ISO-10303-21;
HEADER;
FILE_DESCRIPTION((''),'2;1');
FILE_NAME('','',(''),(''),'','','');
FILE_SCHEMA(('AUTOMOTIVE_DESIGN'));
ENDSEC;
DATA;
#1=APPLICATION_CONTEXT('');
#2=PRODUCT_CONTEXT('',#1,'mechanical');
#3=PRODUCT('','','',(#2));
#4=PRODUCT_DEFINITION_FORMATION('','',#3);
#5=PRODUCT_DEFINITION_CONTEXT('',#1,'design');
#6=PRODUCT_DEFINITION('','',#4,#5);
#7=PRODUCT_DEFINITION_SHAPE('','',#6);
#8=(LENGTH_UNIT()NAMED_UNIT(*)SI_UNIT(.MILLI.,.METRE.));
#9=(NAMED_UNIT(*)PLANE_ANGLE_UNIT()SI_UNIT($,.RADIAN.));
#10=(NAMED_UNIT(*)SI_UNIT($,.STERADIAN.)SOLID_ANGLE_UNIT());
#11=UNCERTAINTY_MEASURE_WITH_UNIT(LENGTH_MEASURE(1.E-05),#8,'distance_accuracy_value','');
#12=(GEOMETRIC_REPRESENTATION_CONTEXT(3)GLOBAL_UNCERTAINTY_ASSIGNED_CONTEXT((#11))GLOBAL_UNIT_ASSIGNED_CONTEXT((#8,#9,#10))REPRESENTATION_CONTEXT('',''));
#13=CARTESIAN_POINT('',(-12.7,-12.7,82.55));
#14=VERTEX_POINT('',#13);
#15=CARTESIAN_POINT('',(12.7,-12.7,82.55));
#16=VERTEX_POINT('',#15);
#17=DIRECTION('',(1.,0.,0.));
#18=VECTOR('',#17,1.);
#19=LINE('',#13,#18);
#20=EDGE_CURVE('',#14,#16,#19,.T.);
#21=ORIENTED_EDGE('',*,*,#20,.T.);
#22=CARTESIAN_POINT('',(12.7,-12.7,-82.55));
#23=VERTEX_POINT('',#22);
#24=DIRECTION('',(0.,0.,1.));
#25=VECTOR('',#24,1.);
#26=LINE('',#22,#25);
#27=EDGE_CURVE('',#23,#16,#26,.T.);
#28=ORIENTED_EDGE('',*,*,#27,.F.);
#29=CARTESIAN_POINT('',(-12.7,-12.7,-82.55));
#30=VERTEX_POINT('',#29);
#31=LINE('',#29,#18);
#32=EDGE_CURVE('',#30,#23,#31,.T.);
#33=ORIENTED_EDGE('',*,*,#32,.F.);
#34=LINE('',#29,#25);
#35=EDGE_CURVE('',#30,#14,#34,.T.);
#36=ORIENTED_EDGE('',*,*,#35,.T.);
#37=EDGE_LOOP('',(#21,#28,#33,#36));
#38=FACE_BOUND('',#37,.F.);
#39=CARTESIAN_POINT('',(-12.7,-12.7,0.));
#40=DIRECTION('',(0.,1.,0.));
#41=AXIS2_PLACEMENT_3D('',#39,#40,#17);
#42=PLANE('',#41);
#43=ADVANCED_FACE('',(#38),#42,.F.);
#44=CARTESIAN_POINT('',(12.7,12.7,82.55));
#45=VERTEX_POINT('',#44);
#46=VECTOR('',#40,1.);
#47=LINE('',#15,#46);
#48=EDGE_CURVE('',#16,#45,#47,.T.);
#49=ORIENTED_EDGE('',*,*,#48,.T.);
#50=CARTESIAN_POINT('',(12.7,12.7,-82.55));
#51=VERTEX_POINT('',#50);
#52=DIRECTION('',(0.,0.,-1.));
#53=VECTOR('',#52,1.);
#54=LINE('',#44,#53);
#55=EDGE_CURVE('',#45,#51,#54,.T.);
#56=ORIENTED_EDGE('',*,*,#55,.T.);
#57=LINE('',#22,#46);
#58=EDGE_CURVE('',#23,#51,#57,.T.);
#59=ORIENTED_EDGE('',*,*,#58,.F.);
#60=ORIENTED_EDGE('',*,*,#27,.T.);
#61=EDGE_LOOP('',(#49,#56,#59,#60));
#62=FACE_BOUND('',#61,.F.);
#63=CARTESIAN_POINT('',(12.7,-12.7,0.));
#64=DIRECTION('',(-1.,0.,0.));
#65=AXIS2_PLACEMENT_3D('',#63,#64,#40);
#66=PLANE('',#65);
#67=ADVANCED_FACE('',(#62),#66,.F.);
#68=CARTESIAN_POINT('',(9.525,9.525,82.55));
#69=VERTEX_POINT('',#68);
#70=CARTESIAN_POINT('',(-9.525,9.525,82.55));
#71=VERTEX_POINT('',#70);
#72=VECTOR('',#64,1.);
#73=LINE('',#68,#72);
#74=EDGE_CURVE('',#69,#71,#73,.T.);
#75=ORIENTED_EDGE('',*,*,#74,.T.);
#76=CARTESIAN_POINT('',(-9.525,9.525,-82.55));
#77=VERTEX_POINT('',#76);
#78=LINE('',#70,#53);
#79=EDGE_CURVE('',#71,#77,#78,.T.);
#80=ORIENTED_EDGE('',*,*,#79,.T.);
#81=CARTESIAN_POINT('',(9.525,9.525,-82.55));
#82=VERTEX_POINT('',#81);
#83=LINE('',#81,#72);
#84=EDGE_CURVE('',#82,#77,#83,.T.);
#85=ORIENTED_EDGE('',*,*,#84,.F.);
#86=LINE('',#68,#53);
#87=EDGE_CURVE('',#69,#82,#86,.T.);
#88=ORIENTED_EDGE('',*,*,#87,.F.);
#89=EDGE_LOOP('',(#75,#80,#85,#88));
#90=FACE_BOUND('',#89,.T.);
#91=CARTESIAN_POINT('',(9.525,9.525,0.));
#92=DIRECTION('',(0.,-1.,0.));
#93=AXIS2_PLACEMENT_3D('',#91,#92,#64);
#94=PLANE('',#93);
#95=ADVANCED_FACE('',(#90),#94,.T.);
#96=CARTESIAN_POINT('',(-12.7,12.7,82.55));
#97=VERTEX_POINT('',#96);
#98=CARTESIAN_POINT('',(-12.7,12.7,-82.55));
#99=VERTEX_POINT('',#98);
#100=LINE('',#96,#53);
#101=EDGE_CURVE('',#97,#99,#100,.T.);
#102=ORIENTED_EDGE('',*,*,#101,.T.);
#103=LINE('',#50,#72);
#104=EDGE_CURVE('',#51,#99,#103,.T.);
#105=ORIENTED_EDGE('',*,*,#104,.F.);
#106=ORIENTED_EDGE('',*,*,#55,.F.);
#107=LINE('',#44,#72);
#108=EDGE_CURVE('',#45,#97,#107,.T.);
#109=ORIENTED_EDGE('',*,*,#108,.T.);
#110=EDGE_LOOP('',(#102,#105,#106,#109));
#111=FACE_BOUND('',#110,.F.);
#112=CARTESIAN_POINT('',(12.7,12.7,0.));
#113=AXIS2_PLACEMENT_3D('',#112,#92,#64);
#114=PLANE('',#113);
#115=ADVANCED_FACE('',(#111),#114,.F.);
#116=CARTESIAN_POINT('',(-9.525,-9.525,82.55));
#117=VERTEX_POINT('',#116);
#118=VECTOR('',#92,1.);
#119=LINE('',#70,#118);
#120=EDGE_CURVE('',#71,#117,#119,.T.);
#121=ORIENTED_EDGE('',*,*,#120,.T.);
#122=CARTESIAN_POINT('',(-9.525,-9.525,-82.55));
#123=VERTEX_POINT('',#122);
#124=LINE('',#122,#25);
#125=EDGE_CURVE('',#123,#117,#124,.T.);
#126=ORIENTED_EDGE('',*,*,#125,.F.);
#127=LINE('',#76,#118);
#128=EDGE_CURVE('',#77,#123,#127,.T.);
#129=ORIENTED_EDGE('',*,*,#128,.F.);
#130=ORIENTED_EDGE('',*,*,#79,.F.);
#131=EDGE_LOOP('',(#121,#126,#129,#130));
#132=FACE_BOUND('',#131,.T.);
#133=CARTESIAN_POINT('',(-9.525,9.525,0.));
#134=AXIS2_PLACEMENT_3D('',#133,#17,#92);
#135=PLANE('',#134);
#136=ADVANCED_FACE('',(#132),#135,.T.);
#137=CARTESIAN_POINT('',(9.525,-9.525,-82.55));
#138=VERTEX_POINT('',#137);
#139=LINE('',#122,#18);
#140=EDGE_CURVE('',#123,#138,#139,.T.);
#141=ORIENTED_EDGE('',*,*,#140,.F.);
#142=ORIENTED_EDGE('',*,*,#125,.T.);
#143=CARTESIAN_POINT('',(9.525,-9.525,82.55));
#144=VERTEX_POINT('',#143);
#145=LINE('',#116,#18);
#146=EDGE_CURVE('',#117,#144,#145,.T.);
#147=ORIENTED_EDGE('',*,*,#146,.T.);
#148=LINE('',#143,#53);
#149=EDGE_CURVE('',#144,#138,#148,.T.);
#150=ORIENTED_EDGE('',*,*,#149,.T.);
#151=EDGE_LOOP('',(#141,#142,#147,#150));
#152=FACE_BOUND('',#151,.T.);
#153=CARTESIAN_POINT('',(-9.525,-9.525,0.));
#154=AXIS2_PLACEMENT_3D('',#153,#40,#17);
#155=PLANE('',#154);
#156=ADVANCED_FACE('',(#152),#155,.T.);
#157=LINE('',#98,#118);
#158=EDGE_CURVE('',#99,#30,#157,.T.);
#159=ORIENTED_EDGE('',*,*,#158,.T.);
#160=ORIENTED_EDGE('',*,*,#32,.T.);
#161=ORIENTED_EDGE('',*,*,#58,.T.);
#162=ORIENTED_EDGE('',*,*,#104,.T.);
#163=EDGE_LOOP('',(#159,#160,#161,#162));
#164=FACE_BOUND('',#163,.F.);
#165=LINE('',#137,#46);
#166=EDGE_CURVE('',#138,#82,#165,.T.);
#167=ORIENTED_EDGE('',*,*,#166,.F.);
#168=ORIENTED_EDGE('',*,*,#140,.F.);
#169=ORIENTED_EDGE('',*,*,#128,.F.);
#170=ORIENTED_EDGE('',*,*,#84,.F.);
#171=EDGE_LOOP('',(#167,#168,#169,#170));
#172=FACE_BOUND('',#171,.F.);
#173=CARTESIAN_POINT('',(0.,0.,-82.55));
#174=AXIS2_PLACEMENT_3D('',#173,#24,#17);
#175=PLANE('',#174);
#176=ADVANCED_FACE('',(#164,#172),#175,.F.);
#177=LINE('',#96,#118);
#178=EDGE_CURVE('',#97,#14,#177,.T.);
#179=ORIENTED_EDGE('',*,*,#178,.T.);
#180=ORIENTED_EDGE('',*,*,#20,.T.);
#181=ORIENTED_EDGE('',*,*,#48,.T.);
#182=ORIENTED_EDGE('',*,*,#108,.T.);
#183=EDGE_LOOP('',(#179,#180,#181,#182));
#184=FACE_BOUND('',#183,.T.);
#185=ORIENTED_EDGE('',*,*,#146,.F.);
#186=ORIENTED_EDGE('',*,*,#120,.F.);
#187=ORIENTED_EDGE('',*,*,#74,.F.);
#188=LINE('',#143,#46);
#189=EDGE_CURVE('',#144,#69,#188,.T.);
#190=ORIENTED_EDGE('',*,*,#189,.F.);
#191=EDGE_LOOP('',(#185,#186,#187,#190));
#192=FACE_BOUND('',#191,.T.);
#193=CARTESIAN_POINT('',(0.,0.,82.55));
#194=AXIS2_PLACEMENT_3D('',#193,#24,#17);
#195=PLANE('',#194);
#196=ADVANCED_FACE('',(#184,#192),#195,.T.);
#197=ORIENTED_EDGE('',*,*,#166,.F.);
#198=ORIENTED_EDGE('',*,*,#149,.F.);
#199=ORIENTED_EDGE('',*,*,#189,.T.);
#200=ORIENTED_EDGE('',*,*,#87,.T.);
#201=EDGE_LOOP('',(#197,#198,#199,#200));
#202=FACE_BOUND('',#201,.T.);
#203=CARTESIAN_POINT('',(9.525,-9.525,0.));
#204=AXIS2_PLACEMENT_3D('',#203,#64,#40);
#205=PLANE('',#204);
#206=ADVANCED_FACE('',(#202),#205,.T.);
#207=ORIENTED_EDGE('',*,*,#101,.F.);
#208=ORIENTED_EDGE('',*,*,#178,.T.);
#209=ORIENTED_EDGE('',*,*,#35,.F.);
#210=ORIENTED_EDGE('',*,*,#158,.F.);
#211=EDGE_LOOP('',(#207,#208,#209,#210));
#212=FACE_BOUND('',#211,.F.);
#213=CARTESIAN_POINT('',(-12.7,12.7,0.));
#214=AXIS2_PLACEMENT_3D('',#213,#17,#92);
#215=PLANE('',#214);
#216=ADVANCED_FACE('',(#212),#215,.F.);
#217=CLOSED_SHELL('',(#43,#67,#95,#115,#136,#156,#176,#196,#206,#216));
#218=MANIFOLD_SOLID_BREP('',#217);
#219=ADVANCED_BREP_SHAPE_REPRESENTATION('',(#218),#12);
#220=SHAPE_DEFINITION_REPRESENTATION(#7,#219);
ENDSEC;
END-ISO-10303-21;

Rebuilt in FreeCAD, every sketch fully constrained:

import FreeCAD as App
import Part
import Sketcher

V = App.Vector
Q = App.Units.Quantity

doc = App.newDocument("Part")
body = doc.addObject("PartDesign::Body", "Body")

# Sketch on XY plane
sketch1 = body.newObject("Sketcher::SketchObject", "Sketch")
sketch1.AttachmentSupport = (doc.getObject("XY_Plane"), [""])
sketch1.MapMode = "FlatFace"
sketch1.addGeometry(Part.LineSegment(V(-12.7, 12.7, 0), V(-12.7, -12.7, 0)), False)
sketch1.addGeometry(Part.LineSegment(V(-12.7, -12.7, 0), V(12.7, -12.7, 0)), False)
sketch1.addGeometry(Part.LineSegment(V(12.7, -12.7, 0), V(12.7, 12.7, 0)), False)
sketch1.addGeometry(Part.LineSegment(V(12.7, 12.7, 0), V(-12.7, 12.7, 0)), False)
sketch1.addGeometry(Part.LineSegment(V(9.525, -9.525, 0), V(-9.525, -9.525, 0)), False)
sketch1.addGeometry(Part.LineSegment(V(-9.525, -9.525, 0), V(-9.525, 9.525, 0)), False)
sketch1.addGeometry(Part.LineSegment(V(-9.525, 9.525, 0), V(9.525, 9.525, 0)), False)
sketch1.addGeometry(Part.LineSegment(V(9.525, 9.525, 0), V(9.525, -9.525, 0)), False)
sketch1.addConstraint(Sketcher.Constraint("Coincident", 0, 2, 1, 1))
sketch1.addConstraint(Sketcher.Constraint("Coincident", 1, 2, 2, 1))
sketch1.addConstraint(Sketcher.Constraint("Coincident", 2, 2, 3, 1))
sketch1.addConstraint(Sketcher.Constraint("Coincident", 3, 2, 0, 1))
sketch1.addConstraint(Sketcher.Constraint("Coincident", 4, 2, 5, 1))
sketch1.addConstraint(Sketcher.Constraint("Coincident", 5, 2, 6, 1))
sketch1.addConstraint(Sketcher.Constraint("Coincident", 6, 2, 7, 1))
sketch1.addConstraint(Sketcher.Constraint("Coincident", 7, 2, 4, 1))
sketch1.addConstraint(Sketcher.Constraint("Vertical", 0))
sketch1.addConstraint(Sketcher.Constraint("Horizontal", 1))
sketch1.addConstraint(Sketcher.Constraint("Vertical", 2))
sketch1.addConstraint(Sketcher.Constraint("Horizontal", 3))
sketch1.addConstraint(Sketcher.Constraint("Horizontal", 4))
sketch1.addConstraint(Sketcher.Constraint("Vertical", 5))
sketch1.addConstraint(Sketcher.Constraint("Horizontal", 6))
sketch1.addConstraint(Sketcher.Constraint("Vertical", 7))
sketch1.addConstraint(Sketcher.Constraint("Symmetric", 0, 2, 2, 2, -1, 1))
sketch1.addConstraint(Sketcher.Constraint("Symmetric", 4, 2, 6, 2, -1, 1))
sketch1.addConstraint(Sketcher.Constraint("Equal", 3, 0))
sketch1.addConstraint(Sketcher.Constraint("Equal", 6, 5))
sketch1.addConstraint(Sketcher.Constraint("DistanceX", 1, 1, 1, 2, Q("1 in")))
sketch1.addConstraint(Sketcher.Constraint("DistanceX", 0, 2, 4, 2, Q("0.125 in")))
pad1 = body.newObject("PartDesign::Pad", "Pad")
pad1.Profile = sketch1
pad1.Length = Q("6.5 in")
pad1.Midplane = True

doc.recompute()
